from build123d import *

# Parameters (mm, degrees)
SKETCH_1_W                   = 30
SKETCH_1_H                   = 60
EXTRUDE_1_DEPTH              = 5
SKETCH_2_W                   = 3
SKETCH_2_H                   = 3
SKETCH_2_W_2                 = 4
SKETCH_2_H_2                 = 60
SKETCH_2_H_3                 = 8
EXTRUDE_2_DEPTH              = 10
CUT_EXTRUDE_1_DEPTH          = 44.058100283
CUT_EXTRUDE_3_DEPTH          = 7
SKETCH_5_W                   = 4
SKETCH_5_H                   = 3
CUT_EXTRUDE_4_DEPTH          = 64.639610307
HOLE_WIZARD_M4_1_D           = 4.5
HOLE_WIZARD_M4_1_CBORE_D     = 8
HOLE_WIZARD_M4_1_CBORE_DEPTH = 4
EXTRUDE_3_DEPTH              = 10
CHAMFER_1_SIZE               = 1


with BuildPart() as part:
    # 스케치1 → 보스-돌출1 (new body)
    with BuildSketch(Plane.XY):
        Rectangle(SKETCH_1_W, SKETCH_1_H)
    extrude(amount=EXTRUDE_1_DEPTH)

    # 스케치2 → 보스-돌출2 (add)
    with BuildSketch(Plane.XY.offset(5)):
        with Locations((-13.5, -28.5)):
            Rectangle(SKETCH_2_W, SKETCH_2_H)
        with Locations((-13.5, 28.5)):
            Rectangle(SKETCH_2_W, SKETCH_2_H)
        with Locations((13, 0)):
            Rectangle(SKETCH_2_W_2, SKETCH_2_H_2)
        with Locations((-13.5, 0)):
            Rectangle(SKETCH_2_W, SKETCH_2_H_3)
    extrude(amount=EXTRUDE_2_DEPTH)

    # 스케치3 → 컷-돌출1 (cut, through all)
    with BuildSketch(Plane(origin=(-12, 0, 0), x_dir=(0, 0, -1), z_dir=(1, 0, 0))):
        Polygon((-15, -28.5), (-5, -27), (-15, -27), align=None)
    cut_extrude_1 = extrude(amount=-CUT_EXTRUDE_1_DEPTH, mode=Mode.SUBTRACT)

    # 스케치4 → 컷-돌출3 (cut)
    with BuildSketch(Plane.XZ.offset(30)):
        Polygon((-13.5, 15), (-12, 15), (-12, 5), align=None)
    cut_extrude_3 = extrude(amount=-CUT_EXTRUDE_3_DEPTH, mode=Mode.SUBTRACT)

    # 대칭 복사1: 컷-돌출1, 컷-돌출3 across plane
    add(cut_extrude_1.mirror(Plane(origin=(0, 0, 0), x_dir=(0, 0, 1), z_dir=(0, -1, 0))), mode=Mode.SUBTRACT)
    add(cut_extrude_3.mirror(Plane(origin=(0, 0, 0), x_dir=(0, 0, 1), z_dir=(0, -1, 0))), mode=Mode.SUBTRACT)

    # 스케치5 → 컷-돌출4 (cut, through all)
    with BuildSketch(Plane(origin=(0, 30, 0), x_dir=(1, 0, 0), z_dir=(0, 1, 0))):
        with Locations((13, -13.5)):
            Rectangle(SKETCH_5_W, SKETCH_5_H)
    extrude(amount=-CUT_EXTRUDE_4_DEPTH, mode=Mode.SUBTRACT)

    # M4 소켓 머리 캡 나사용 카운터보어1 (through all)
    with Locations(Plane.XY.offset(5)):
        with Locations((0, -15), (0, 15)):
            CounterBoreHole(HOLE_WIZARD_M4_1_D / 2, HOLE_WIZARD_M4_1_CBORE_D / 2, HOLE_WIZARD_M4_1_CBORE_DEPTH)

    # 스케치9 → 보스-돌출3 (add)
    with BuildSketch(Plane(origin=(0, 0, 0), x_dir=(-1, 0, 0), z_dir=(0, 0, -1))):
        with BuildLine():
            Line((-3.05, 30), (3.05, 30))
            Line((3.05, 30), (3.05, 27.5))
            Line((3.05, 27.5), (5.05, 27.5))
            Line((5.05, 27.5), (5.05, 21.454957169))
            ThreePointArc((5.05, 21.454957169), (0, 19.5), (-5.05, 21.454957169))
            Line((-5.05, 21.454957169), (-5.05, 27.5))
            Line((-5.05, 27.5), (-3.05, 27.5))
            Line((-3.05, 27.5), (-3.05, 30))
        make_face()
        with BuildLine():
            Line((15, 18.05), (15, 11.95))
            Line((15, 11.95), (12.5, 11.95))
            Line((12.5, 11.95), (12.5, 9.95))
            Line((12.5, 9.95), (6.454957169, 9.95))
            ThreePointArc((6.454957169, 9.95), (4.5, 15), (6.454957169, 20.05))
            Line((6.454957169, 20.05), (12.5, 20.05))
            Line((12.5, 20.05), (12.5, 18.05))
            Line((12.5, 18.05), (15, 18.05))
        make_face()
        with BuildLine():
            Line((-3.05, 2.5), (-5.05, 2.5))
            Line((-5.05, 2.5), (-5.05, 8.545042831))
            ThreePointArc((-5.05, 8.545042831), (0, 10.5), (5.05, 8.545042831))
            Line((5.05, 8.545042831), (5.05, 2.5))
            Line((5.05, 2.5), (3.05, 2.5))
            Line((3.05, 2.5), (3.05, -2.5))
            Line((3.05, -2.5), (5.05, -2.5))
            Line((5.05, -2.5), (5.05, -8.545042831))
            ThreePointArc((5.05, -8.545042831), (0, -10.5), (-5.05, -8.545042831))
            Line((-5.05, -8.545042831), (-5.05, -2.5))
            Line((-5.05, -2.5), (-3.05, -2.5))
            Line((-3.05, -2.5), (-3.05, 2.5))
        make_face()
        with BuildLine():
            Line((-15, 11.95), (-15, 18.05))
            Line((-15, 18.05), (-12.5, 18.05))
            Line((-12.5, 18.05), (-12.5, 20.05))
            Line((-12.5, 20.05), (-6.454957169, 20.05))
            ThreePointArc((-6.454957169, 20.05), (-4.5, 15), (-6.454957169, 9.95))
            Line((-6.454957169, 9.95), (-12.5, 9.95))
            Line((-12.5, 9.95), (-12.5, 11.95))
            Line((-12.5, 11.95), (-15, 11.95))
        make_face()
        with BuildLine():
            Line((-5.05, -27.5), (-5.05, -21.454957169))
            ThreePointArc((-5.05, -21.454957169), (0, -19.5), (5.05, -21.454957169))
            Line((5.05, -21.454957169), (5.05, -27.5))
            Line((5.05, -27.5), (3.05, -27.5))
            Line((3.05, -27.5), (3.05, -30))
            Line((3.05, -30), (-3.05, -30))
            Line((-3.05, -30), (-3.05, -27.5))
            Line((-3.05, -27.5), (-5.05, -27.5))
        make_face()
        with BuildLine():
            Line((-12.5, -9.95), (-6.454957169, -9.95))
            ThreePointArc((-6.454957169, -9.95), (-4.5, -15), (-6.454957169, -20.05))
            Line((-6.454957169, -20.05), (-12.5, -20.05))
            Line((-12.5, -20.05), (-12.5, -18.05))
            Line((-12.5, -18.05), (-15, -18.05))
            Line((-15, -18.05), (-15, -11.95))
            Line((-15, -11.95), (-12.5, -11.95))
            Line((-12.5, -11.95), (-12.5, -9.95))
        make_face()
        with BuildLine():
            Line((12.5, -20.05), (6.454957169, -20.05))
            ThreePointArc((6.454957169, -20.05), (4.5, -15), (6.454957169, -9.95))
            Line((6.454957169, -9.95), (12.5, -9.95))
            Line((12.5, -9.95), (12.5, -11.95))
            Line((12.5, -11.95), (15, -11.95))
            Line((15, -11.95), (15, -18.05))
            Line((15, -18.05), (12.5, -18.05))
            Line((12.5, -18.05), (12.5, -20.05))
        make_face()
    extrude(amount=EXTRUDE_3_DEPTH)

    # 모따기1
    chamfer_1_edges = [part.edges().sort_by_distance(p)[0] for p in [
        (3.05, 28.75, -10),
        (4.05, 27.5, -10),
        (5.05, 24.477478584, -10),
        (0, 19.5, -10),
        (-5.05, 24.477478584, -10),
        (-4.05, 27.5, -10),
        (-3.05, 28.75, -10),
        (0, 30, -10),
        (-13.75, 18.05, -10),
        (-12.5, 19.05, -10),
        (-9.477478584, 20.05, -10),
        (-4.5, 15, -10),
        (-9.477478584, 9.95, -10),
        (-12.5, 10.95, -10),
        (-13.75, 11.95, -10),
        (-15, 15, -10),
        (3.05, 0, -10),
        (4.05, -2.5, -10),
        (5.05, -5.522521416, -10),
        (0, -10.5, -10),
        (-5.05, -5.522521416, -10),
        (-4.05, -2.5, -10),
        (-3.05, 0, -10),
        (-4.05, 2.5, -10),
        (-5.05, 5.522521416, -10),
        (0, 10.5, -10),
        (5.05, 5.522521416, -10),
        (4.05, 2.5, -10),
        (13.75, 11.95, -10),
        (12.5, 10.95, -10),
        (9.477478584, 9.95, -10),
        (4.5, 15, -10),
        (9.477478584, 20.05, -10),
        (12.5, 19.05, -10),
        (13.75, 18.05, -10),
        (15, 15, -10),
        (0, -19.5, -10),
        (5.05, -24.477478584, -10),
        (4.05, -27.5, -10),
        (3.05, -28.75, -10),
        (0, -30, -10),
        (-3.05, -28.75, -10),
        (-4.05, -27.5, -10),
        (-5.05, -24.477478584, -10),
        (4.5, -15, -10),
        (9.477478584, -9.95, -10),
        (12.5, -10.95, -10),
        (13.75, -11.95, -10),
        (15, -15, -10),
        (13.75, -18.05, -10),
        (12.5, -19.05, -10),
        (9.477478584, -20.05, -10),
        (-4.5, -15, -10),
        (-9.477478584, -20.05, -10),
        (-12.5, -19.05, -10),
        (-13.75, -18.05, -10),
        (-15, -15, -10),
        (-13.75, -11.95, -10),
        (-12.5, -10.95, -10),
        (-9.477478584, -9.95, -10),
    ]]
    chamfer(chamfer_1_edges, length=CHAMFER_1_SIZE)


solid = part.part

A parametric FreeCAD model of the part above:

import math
import FreeCAD as App
import Part
import Sketcher


def edges_at(feature, points):
    """Names of the edges that pass closest to the given points."""
    edges = feature.Shape.Edges
    near = lambda p: min(range(len(edges)), key=lambda i: edges[i].distToShape(Part.Vertex(*p))[0])
    return sorted({f"Edge{near(p) + 1}" for p in points})

doc = App.newDocument("Part")
body = doc.addObject("PartDesign::Body", "Body")

# Sketch on XY plane
sketch1 = doc.addObject("Sketcher::SketchObject", "Sketch")
body.addObject(sketch1)
sketch1.AttachmentSupport = (doc.XY_Plane, [""])
sketch1.MapMode = "FlatFace"
sketch1.addGeometry([
    Part.LineSegment(App.Vector(-15, 30, 0), App.Vector(-15, -30, 0)),
    Part.LineSegment(App.Vector(-15, -30, 0), App.Vector(15, -30, 0)),
    Part.LineSegment(App.Vector(15, -30, 0), App.Vector(15, 30, 0)),
    Part.LineSegment(App.Vector(15, 30, 0), App.Vector(-15, 30, 0)),
], False)
sketch1.addConstraint([
    Sketcher.Constraint("Coincident", 0, 2, 1, 1),
    Sketcher.Constraint("Coincident", 1, 2, 2, 1),
    Sketcher.Constraint("Coincident", 2, 2, 3, 1),
    Sketcher.Constraint("Coincident", 3, 2, 0, 1),
    Sketcher.Constraint("Vertical", 0),
    Sketcher.Constraint("Horizontal", 1),
    Sketcher.Constraint("Vertical", 2),
    Sketcher.Constraint("Horizontal", 3),
    Sketcher.Constraint("Symmetric", 0, 2, 2, 2, -1, 1),
    Sketcher.Constraint("DistanceX", 1, 1, 1, 2, 30.0),
    Sketcher.Constraint("DistanceY", 0, 2, 0, 1, 60.0),
])
pad1 = doc.addObject("PartDesign::Pad", "Pad")
body.addObject(pad1)
pad1.Profile = sketch1
pad1.Length = 5

# Sketch on XY plane
sketch2 = doc.addObject("Sketcher::SketchObject", "Sketch001")
body.addObject(sketch2)
sketch2.AttachmentSupport = (doc.XY_Plane, [""])
sketch2.MapMode = "FlatFace"
sketch2.AttachmentOffset = App.Placement(App.Vector(0, 0, 5), App.Rotation())
sketch2.addGeometry([
    Part.LineSegment(App.Vector(-15, -27, 0), App.Vector(-15, -30, 0)),  # 0
    Part.LineSegment(App.Vector(-15, -30, 0), App.Vector(-12, -30, 0)),  # 1
    Part.LineSegment(App.Vector(-12, -30, 0), App.Vector(-12, -27, 0)),  # 2
    Part.LineSegment(App.Vector(-12, -27, 0), App.Vector(-15, -27, 0)),  # 3
    Part.LineSegment(App.Vector(-15, 30, 0), App.Vector(-15, 27, 0)),  # 4
    Part.LineSegment(App.Vector(-15, 27, 0), App.Vector(-12, 27, 0)),  # 5
    Part.LineSegment(App.Vector(-12, 27, 0), App.Vector(-12, 30, 0)),  # 6
    Part.LineSegment(App.Vector(-12, 30, 0), App.Vector(-15, 30, 0)),  # 7
    Part.LineSegment(App.Vector(11, 30, 0), App.Vector(11, -30, 0)),  # 8
    Part.LineSegment(App.Vector(11, -30, 0), App.Vector(15, -30, 0)),  # 9
    Part.LineSegment(App.Vector(15, -30, 0), App.Vector(15, 30, 0)),  # 10
    Part.LineSegment(App.Vector(15, 30, 0), App.Vector(11, 30, 0)),  # 11
    Part.LineSegment(App.Vector(-15, 4, 0), App.Vector(-15, -4, 0)),  # 12
    Part.LineSegment(App.Vector(-15, -4, 0), App.Vector(-12, -4, 0)),  # 13
    Part.LineSegment(App.Vector(-12, -4, 0), App.Vector(-12, 4, 0)),  # 14
    Part.LineSegment(App.Vector(-12, 4, 0), App.Vector(-15, 4, 0)),  # 15
], False)
sketch2.addConstraint([
    Sketcher.Constraint("Coincident", 0, 2, 1, 1),
    Sketcher.Constraint("Coincident", 1, 2, 2, 1),
    Sketcher.Constraint("Coincident", 2, 2, 3, 1),
    Sketcher.Constraint("Coincident", 3, 2, 0, 1),
    Sketcher.Constraint("Coincident", 4, 2, 5, 1),
    Sketcher.Constraint("Coincident", 5, 2, 6, 1),
    Sketcher.Constraint("Coincident", 6, 2, 7, 1),
    Sketcher.Constraint("Coincident", 7, 2, 4, 1),
    Sketcher.Constraint("Coincident", 8, 2, 9, 1),
    Sketcher.Constraint("Coincident", 9, 2, 10, 1),
    Sketcher.Constraint("Coincident", 10, 2, 11, 1),
    Sketcher.Constraint("Coincident", 11, 2, 8, 1),
    Sketcher.Constraint("Coincident", 12, 2, 13, 1),
    Sketcher.Constraint("Coincident", 13, 2, 14, 1),
    Sketcher.Constraint("Coincident", 14, 2, 15, 1),
    Sketcher.Constraint("Coincident", 15, 2, 12, 1),
    Sketcher.Constraint("Vertical", 0),
    Sketcher.Constraint("Horizontal", 1),
    Sketcher.Constraint("Vertical", 2),
    Sketcher.Constraint("Horizontal", 3),
    Sketcher.Constraint("Vertical", 4),
    Sketcher.Constraint("Horizontal", 5),
    Sketcher.Constraint("Vertical", 6),
    Sketcher.Constraint("Horizontal", 7),
    Sketcher.Constraint("Vertical", 8),
    Sketcher.Constraint("Horizontal", 9),
    Sketcher.Constraint("Vertical", 10),
    Sketcher.Constraint("Horizontal", 11),
    Sketcher.Constraint("Vertical", 12),
    Sketcher.Constraint("Horizontal", 13),
    Sketcher.Constraint("Vertical", 14),
    Sketcher.Constraint("Horizontal", 15),
    Sketcher.Constraint("Symmetric", 7, 2, 9, 2, -1, 1),
    Sketcher.Constraint("Symmetric", 0, 2, 10, 2, -1, 1),
    Sketcher.Constraint("Symmetric", 2, 2, 5, 2, -1),
    Sketcher.Constraint("Horizontal", 1, 2, 8, 2),
    Sketcher.Constraint("Vertical", 7, 2, 12, 2),
    Sketcher.Constraint("Vertical", 6, 2, 13, 2),
    Sketcher.Constraint("Equal", 15, 0),
    Sketcher.Constraint("DistanceX", 1, 1, 1, 2, 3.0),
    Sketcher.Constraint("DistanceX", 9, 1, 9, 2, 4.0),
    Sketcher.Constraint("DistanceY", 8, 2, 8, 1, 60.0),
    Sketcher.Constraint("DistanceY", 12, 2, 12, 1, 8.0),
    Sketcher.Constraint("DistanceX", 0, 2, -1, 1, 15.0),
    Sketcher.Constraint("DistanceY", 12, 2, -1, 1, 4.0),
])
pad2 = doc.addObject("PartDesign::Pad", "Pad001")
body.addObject(pad2)
pad2.Profile = sketch2
pad2.Length = 10

# Sketch on YZ plane
sketch3 = doc.addObject("Sketcher::SketchObject", "Sketch002")
body.addObject(sketch3)
sketch3.AttachmentSupport = (doc.YZ_Plane, [""])
sketch3.MapMode = "FlatFace"
sketch3.AttachmentOffset = App.Placement(App.Vector(0, 0, -12), App.Rotation())
sketch3.addGeometry([
    Part.LineSegment(App.Vector(-28.5, 15, 0), App.Vector(-27, 5, 0)),
    Part.LineSegment(App.Vector(-27, 5, 0), App.Vector(-27, 15, 0)),
    Part.LineSegment(App.Vector(-27, 15, 0), App.Vector(-28.5, 15, 0)),
], False)
sketch3.addConstraint([
    Sketcher.Constraint("Coincident", 0, 2, 1, 1),
    Sketcher.Constraint("Coincident", 1, 2, 2, 1),
    Sketcher.Constraint("Coincident", 2, 2, 0, 1),
    Sketcher.Constraint("Vertical", 1),
    Sketcher.Constraint("Horizontal", 2),
    Sketcher.Constraint("DistanceY", 1, 1, 1, 2, 10.0),
    Sketcher.Constraint("DistanceX", 2, 2, 2, 1, 1.5),
    Sketcher.Constraint("DistanceX", 0, 2, -1, 1, 27.0),
    Sketcher.Constraint("DistanceY", -1, 1, 0, 2, 5.0),
])
pocket1 = doc.addObject("PartDesign::Pocket", "Pocket")
body.addObject(pocket1)
pocket1.Profile = sketch3
pocket1.Type = "ThroughAll"

# Sketch on XZ plane
sketch4 = doc.addObject("Sketcher::SketchObject", "Sketch003")
body.addObject(sketch4)
sketch4.AttachmentSupport = (doc.XZ_Plane, [""])
sketch4.MapMode = "FlatFace"
sketch4.AttachmentOffset = App.Placement(App.Vector(0, 0, 30), App.Rotation())
sketch4.addGeometry([
    Part.LineSegment(App.Vector(-12, 15, 0), App.Vector(-13.5, 15, 0)),
    Part.LineSegment(App.Vector(-13.5, 15, 0), App.Vector(-12, 5, 0)),
    Part.LineSegment(App.Vector(-12, 5, 0), App.Vector(-12, 15, 0)),
], False)
sketch4.addConstraint([
    Sketcher.Constraint("Coincident", 0, 2, 1, 1),
    Sketcher.Constraint("Coincident", 1, 2, 2, 1),
    Sketcher.Constraint("Coincident", 2, 2, 0, 1),
    Sketcher.Constraint("Horizontal", 0),
    Sketcher.Constraint("Vertical", 2),
    Sketcher.Constraint("DistanceY", 2, 1, 2, 2, 10.0),
    Sketcher.Constraint("DistanceX", 0, 2, 0, 1, 1.5),
    Sketcher.Constraint("DistanceY", -1, 1, 0, 2, 15.0),
    Sketcher.Constraint("DistanceX", 1, 2, -1, 1, 12.0),
])
pocket2 = doc.addObject("PartDesign::Pocket", "Pocket001")
body.addObject(pocket2)
pocket2.Profile = sketch4
pocket2.Length = 7
doc.recompute()

mirrored = doc.addObject("PartDesign::Mirrored", "Mirrored")
body.addObject(mirrored)
mirrored.Originals = [pocket1, pocket2]
mirrored.MirrorPlane = (doc.XZ_Plane, [""])
body.Tip = mirrored

# Sketch on XZ plane
sketch5 = doc.addObject("Sketcher::SketchObject", "Sketch004")
body.addObject(sketch5)
sketch5.AttachmentSupport = (doc.XZ_Plane, [""])
sketch5.MapMode = "FlatFace"
sketch5.AttachmentOffset = App.Placement(App.Vector(0, 0, -30), App.Rotation())
sketch5.addGeometry([
    Part.LineSegment(App.Vector(11, 12, 0), App.Vector(11, 15, 0)),
    Part.LineSegment(App.Vector(11, 15, 0), App.Vector(15, 15, 0)),
    Part.LineSegment(App.Vector(15, 15, 0), App.Vector(15, 12, 0)),
    Part.LineSegment(App.Vector(15, 12, 0), App.Vector(11, 12, 0)),
], False)
sketch5.addConstraint([
    Sketcher.Constraint("Coincident", 0, 2, 1, 1),
    Sketcher.Constraint("Coincident", 1, 2, 2, 1),
    Sketcher.Constraint("Coincident", 2, 2, 3, 1),
    Sketcher.Constraint("Coincident", 3, 2, 0, 1),
    Sketcher.Constraint("Vertical", 0),
    Sketcher.Constraint("Horizontal", 1),
    Sketcher.Constraint("Vertical", 2),
    Sketcher.Constraint("Horizontal", 3),
    Sketcher.Constraint("DistanceX", 1, 1, 1, 2, 4.0),
    Sketcher.Constraint("DistanceY", 0, 1, 0, 2, 3.0),
    Sketcher.Constraint("DistanceX", -1, 1, 0, 2, 11.0),
    Sketcher.Constraint("DistanceY", -1, 1, 0, 2, 15.0),
])
pocket3 = doc.addObject("PartDesign::Pocket", "Pocket002")
body.addObject(pocket3)
pocket3.Profile = sketch5
pocket3.Type = "ThroughAll"
pocket3.Reversed = True

# Sketch on XY plane
sketch6 = doc.addObject("Sketcher::SketchObject", "Sketch005")
body.addObject(sketch6)
sketch6.AttachmentSupport = (doc.XY_Plane, [""])
sketch6.MapMode = "FlatFace"
sketch6.AttachmentOffset = App.Placement(App.Vector(0, 0, 5), App.Rotation())
sketch6.addGeometry([
    Part.Circle(App.Vector(0, -15, 0), App.Vector(0, 0, 1), 2.25),
    Part.Circle(App.Vector(0, 15, 0), App.Vector(0, 0, 1), 2.25),
], False)
sketch6.addConstraint([
    Sketcher.Constraint("Equal", 0, 1),
    Sketcher.Constraint("Symmetric", 0, 3, 1, 3, -1, 1),
    Sketcher.Constraint("PointOnObject", 0, 3, -2),
    Sketcher.Constraint("Diameter", 0, 4.5),
    Sketcher.Constraint("DistanceY", 0, 3, -1, 1, 15.0),
])
doc.recompute()
hole = doc.addObject("PartDesign::Hole", "Hole")
body.addObject(hole)
hole.Profile = sketch6
hole.ThreadType = "None"
hole.Diameter = 4.5
hole.DepthType = "ThroughAll"
hole.HoleCutType = "Counterbore"
hole.HoleCutDiameter = 8
hole.HoleCutDepth = 4

# Sketch on XY plane
sketch7 = doc.addObject("Sketcher::SketchObject", "Sketch006")
body.addObject(sketch7)
sketch7.AttachmentSupport = (doc.XY_Plane, [""])
sketch7.MapMode = "FlatFace"
sketch7.addGeometry([
    Part.LineSegment(App.Vector(-3.05, 30, 0), App.Vector(3.05, 30, 0)),  # 0
    Part.LineSegment(App.Vector(3.05, 30, 0), App.Vector(3.05, 27.5, 0)),  # 1
    Part.LineSegment(App.Vector(3.05, 27.5, 0), App.Vector(5.05, 27.5, 0)),  # 2
    Part.LineSegment(App.Vector(5.05, 27.5, 0), App.Vector(5.05, 21.454957, 0)),  # 3
    Part.ArcOfCircle(Part.Circle(App.Vector(0, 27, 0), App.Vector(0, 0, 1), 7.5), math.radians(-132.324857), math.radians(-47.675143)),  # 4
    Part.LineSegment(App.Vector(-5.05, 21.454957, 0), App.Vector(-5.05, 27.5, 0)),  # 5
    Part.LineSegment(App.Vector(-5.05, 27.5, 0), App.Vector(-3.05, 27.5, 0)),  # 6
    Part.LineSegment(App.Vector(-3.05, 27.5, 0), App.Vector(-3.05, 30, 0)),  # 7
    Part.LineSegment(App.Vector(-15, 11.95, 0), App.Vector(-15, 18.05, 0)),  # 8
    Part.LineSegment(App.Vector(-15, 18.05, 0), App.Vector(-12.5, 18.05, 0)),  # 9
    Part.LineSegment(App.Vector(-12.5, 18.05, 0), App.Vector(-12.5, 20.05, 0)),  # 10
    Part.LineSegment(App.Vector(-12.5, 20.05, 0), App.Vector(-6.454957, 20.05, 0)),  # 11
    Part.ArcOfCircle(Part.Circle(App.Vector(-12, 15, 0), App.Vector(0, 0, 1), 7.5), math.radians(-42.324857), math.radians(42.324857)),  # 12
    Part.LineSegment(App.Vector(-6.454957, 9.95, 0), App.Vector(-12.5, 9.95, 0)),  # 13
    Part.LineSegment(App.Vector(-12.5, 9.95, 0), App.Vector(-12.5, 11.95, 0)),  # 14
    Part.LineSegment(App.Vector(-12.5, 11.95, 0), App.Vector(-15, 11.95, 0)),  # 15
    Part.LineSegment(App.Vector(5.05, 2.5, 0), App.Vector(3.05, 2.5, 0)),  # 16
    Part.LineSegment(App.Vector(3.05, 2.5, 0), App.Vector(3.05, -2.5, 0)),  # 17
    Part.LineSegment(App.Vector(3.05, -2.5, 0), App.Vector(5.05, -2.5, 0)),  # 18
    Part.LineSegment(App.Vector(5.05, -2.5, 0), App.Vector(5.05, -8.545043, 0)),  # 19
    Part.ArcOfCircle(Part.Circle(App.Vector(0, -3, 0), App.Vector(0, 0, 1), 7.5), math.radians(-132.324857), math.radians(-47.675143)),  # 20
    Part.LineSegment(App.Vector(-5.05, -8.545043, 0), App.Vector(-5.05, -2.5, 0)),  # 21
    Part.LineSegment(App.Vector(-5.05, -2.5, 0), App.Vector(-3.05, -2.5, 0)),  # 22
    Part.LineSegment(App.Vector(-3.05, -2.5, 0), App.Vector(-3.05, 2.5, 0)),  # 23
    Part.LineSegment(App.Vector(-3.05, 2.5, 0), App.Vector(-5.05, 2.5, 0)),  # 24
    Part.LineSegment(App.Vector(-5.05, 2.5, 0), App.Vector(-5.05, 8.545043, 0)),  # 25
    Part.ArcOfCircle(Part.Circle(App.Vector(0, 3, 0), App.Vector(0, 0, 1), 7.5), math.radians(47.675143), math.radians(132.324857)),  # 26
    Part.LineSegment(App.Vector(5.05, 8.545043, 0), App.Vector(5.05, 2.5, 0)),  # 27
    Part.LineSegment(App.Vector(15, 18.05, 0), App.Vector(15, 11.95, 0)),  # 28
    Part.LineSegment(App.Vector(15, 11.95, 0), App.Vector(12.5, 11.95, 0)),  # 29
    Part.LineSegment(App.Vector(12.5, 11.95, 0), App.Vector(12.5, 9.95, 0)),  # 30
    Part.LineSegment(App.Vector(12.5, 9.95, 0), App.Vector(6.454957, 9.95, 0)),  # 31
    Part.ArcOfCircle(Part.Circle(App.Vector(12, 15, 0), App.Vector(0, 0, 1), 7.5), math.radians(137.675143), math.radians(222.324857)),  # 32
    Part.LineSegment(App.Vector(6.454957, 20.05, 0), App.Vector(12.5, 20.05, 0)),  # 33
    Part.LineSegment(App.Vector(12.5, 20.05, 0), App.Vector(12.5, 18.05, 0)),  # 34
    Part.LineSegment(App.Vector(12.5, 18.05, 0), App.Vector(15, 18.05, 0)),  # 35
    Part.LineSegment(App.Vector(5.05, -21.454957, 0), App.Vector(5.05, -27.5, 0)),  # 36
    Part.LineSegment(App.Vector(5.05, -27.5, 0), App.Vector(3.05, -27.5, 0)),  # 37
    Part.LineSegment(App.Vector(3.05, -27.5, 0), App.Vector(3.05, -30, 0)),  # 38
    Part.LineSegment(App.Vector(3.05, -30, 0), App.Vector(-3.05, -30, 0)),  # 39
    Part.LineSegment(App.Vector(-3.05, -30, 0), App.Vector(-3.05, -27.5, 0)),  # 40
    Part.LineSegment(App.Vector(-3.05, -27.5, 0), App.Vector(-5.05, -27.5, 0)),  # 41
    Part.LineSegment(App.Vector(-5.05, -27.5, 0), App.Vector(-5.05, -21.454957, 0)),  # 42
    Part.ArcOfCircle(Part.Circle(App.Vector(0, -27, 0), App.Vector(0, 0, 1), 7.5), math.radians(47.675143), math.radians(132.324857)),  # 43
    Part.LineSegment(App.Vector(6.454957, -9.95, 0), App.Vector(12.5, -9.95, 0)),  # 44
    Part.LineSegment(App.Vector(12.5, -9.95, 0), App.Vector(12.5, -11.95, 0)),  # 45
    Part.LineSegment(App.Vector(12.5, -11.95, 0), App.Vector(15, -11.95, 0)),  # 46
    Part.LineSegment(App.Vector(15, -11.95, 0), App.Vector(15, -18.05, 0)),  # 47
    Part.LineSegment(App.Vector(15, -18.05, 0), App.Vector(12.5, -18.05, 0)),  # 48
    Part.LineSegment(App.Vector(12.5, -18.05, 0), App.Vector(12.5, -20.05, 0)),  # 49
    Part.LineSegment(App.Vector(12.5, -20.05, 0), App.Vector(6.454957, -20.05, 0)),  # 50
    Part.ArcOfCircle(Part.Circle(App.Vector(12, -15, 0), App.Vector(0, 0, 1), 7.5), math.radians(137.675143), math.radians(222.324857)),  # 51
    Part.LineSegment(App.Vector(-6.454957, -20.05, 0), App.Vector(-12.5, -20.05, 0)),  # 52
    Part.LineSegment(App.Vector(-12.5, -20.05, 0), App.Vector(-12.5, -18.05, 0)),  # 53
    Part.LineSegment(App.Vector(-12.5, -18.05, 0), App.Vector(-15, -18.05, 0)),  # 54
    Part.LineSegment(App.Vector(-15, -18.05, 0), App.Vector(-15, -11.95, 0)),  # 55
    Part.LineSegment(App.Vector(-15, -11.95, 0), App.Vector(-12.5, -11.95, 0)),  # 56
    Part.LineSegment(App.Vector(-12.5, -11.95, 0), App.Vector(-12.5, -9.95, 0)),  # 57
    Part.LineSegment(App.Vector(-12.5, -9.95, 0), App.Vector(-6.454957, -9.95, 0)),  # 58
    Part.ArcOfCircle(Part.Circle(App.Vector(-12, -15, 0), App.Vector(0, 0, 1), 7.5), math.radians(-42.324857), math.radians(42.324857)),  # 59
], False)
sketch7.addConstraint([
    Sketcher.Constraint("Coincident", 0, 2, 1, 1),
    Sketcher.Constraint("Coincident", 1, 2, 2, 1),
    Sketcher.Constraint("Coincident", 2, 2, 3, 1),
    Sketcher.Constraint("Coincident", 3, 2, 4, 2),
    Sketcher.Constraint("Coincident", 4, 1, 5, 1),
    Sketcher.Constraint("Coincident", 5, 2, 6, 1),
    Sketcher.Constraint("Coincident", 6, 2, 7, 1),
    Sketcher.Constraint("Coincident", 7, 2, 0, 1),
    Sketcher.Constraint("Coincident", 8, 2, 9, 1),
    Sketcher.Constraint("Coincident", 9, 2, 10, 1),
    Sketcher.Constraint("Coincident", 10, 2, 11, 1),
    Sketcher.Constraint("Coincident", 11, 2, 12, 2),
    Sketcher.Constraint("Coincident", 12, 1, 13, 1),
    Sketcher.Constraint("Coincident", 13, 2, 14, 1),
    Sketcher.Constraint("Coincident", 14, 2, 15, 1),
    Sketcher.Constraint("Coincident", 15, 2, 8, 1),
    Sketcher.Constraint("Coincident", 16, 2, 17, 1),
    Sketcher.Constraint("Coincident", 17, 2, 18, 1),
    Sketcher.Constraint("Coincident", 18, 2, 19, 1),
    Sketcher.Constraint("Coincident", 19, 2, 20, 2),
    Sketcher.Constraint("Coincident", 20, 1, 21, 1),
    Sketcher.Constraint("Coincident", 21, 2, 22, 1),
    Sketcher.Constraint("Coincident", 22, 2, 23, 1),
    Sketcher.Constraint("Coincident", 23, 2, 24, 1),
    Sketcher.Constraint("Coincident", 24, 2, 25, 1),
    Sketcher.Constraint("Coincident", 25, 2, 26, 2),
    Sketcher.Constraint("Coincident", 26, 1, 27, 1),
    Sketcher.Constraint("Coincident", 27, 2, 16, 1),
    Sketcher.Constraint("Coincident", 28, 2, 29, 1),
    Sketcher.Constraint("Coincident", 29, 2, 30, 1),
    Sketcher.Constraint("Coincident", 30, 2, 31, 1),
    Sketcher.Constraint("Coincident", 31, 2, 32, 2),
    Sketcher.Constraint("Coincident", 32, 1, 33, 1),
    Sketcher.Constraint("Coincident", 33, 2, 34, 1),
    Sketcher.Constraint("Coincident", 34, 2, 35, 1),
    Sketcher.Constraint("Coincident", 35, 2, 28, 1),
    Sketcher.Constraint("Coincident", 36, 2, 37, 1),
    Sketcher.Constraint("Coincident", 37, 2, 38, 1),
    Sketcher.Constraint("Coincident", 38, 2, 39, 1),
    Sketcher.Constraint("Coincident", 39, 2, 40, 1),
    Sketcher.Constraint("Coincident", 40, 2, 41, 1),
    Sketcher.Constraint("Coincident", 41, 2, 42, 1),
    Sketcher.Constraint("Coincident", 42, 2, 43, 2),
    Sketcher.Constraint("Coincident", 43, 1, 36, 1),
    Sketcher.Constraint("Coincident", 44, 2, 45, 1),
    Sketcher.Constraint("Coincident", 45, 2, 46, 1),
    Sketcher.Constraint("Coincident", 46, 2, 47, 1),
    Sketcher.Constraint("Coincident", 47, 2, 48, 1),
    Sketcher.Constraint("Coincident", 48, 2, 49, 1),
    Sketcher.Constraint("Coincident", 49, 2, 50, 1),
    Sketcher.Constraint("Coincident", 50, 2, 51, 2),
    Sketcher.Constraint("Coincident", 51, 1, 44, 1),
    Sketcher.Constraint("Coincident", 52, 2, 53, 1),
    Sketcher.Constraint("Coincident", 53, 2, 54, 1),
    Sketcher.Constraint("Coincident", 54, 2, 55, 1),
    Sketcher.Constraint("Coincident", 55, 2, 56, 1),
    Sketcher.Constraint("Coincident", 56, 2, 57, 1),
    Sketcher.Constraint("Coincident", 57, 2, 58, 1),
    Sketcher.Constraint("Coincident", 58, 2, 59, 2),
    Sketcher.Constraint("Coincident", 59, 1, 52, 1),
    Sketcher.Constraint("Horizontal", 0),
    Sketcher.Constraint("Vertical", 1),
    Sketcher.Constraint("Horizontal", 2),
    Sketcher.Constraint("Vertical", 3),
    Sketcher.Constraint("Vertical", 5),
    Sketcher.Constraint("Horizontal", 6),
    Sketcher.Constraint("Vertical", 7),
    Sketcher.Constraint("Vertical", 8),
    Sketcher.Constraint("Horizontal", 9),
    Sketcher.Constraint("Vertical", 10),
    Sketcher.Constraint("Horizontal", 11),
    Sketcher.Constraint("Horizontal", 13),
    Sketcher.Constraint("Vertical", 14),
    Sketcher.Constraint("Horizontal", 15),
    Sketcher.Constraint("Horizontal", 16),
    Sketcher.Constraint("Vertical", 17),
    Sketcher.Constraint("Horizontal", 18),
    Sketcher.Constraint("Vertical", 19),
    Sketcher.Constraint("Vertical", 21),
    Sketcher.Constraint("Horizontal", 22),
    Sketcher.Constraint("Vertical", 23),
    Sketcher.Constraint("Horizontal", 24),
    Sketcher.Constraint("Vertical", 25),
    Sketcher.Constraint("Vertical", 27),
    Sketcher.Constraint("Vertical", 28),
    Sketcher.Constraint("Horizontal", 29),
    Sketcher.Constraint("Vertical", 30),
    Sketcher.Constraint("Horizontal", 31),
    Sketcher.Constraint("Horizontal", 33),
    Sketcher.Constraint("Vertical", 34),
    Sketcher.Constraint("Horizontal", 35),
    Sketcher.Constraint("Vertical", 36),
    Sketcher.Constraint("Horizontal", 37),
    Sketcher.Constraint("Vertical", 38),
    Sketcher.Constraint("Horizontal", 39),
    Sketcher.Constraint("Vertical", 40),
    Sketcher.Constraint("Horizontal", 41),
    Sketcher.Constraint("Vertical", 42),
    Sketcher.Constraint("Horizontal", 44),
    Sketcher.Constraint("Vertical", 45),
    Sketcher.Constraint("Horizontal", 46),
    Sketcher.Constraint("Vertical", 47),
    Sketcher.Constraint("Horizontal", 48),
    Sketcher.Constraint("Vertical", 49),
    Sketcher.Constraint("Horizontal", 50),
    Sketcher.Constraint("Horizontal", 52),
    Sketcher.Constraint("Vertical", 53),
    Sketcher.Constraint("Horizontal", 54),
    Sketcher.Constraint("Vertical", 55),
    Sketcher.Constraint("Horizontal", 56),
    Sketcher.Constraint("Vertical", 57),
    Sketcher.Constraint("Horizontal", 58),
    Sketcher.Constraint("Equal", 4, 12),
    Sketcher.Constraint("Equal", 12, 20),
    Sketcher.Constraint("Equal", 20, 26),
    Sketcher.Constraint("Equal", 26, 32),
    Sketcher.Constraint("Equal", 32, 43),
    Sketcher.Constraint("Equal", 43, 51),
    Sketcher.Constraint("Equal", 51, 59),
    Sketcher.Constraint("Symmetric", 20, 3, 26, 3, -1, 1),
    Sketcher.Constraint("Symmetric", 4, 3, 43, 3, -1, 1),
    Sketcher.Constraint("Symmetric", 12, 3, 51, 3, -1, 1),
    Sketcher.Constraint("Symmetric", 32, 3, 59, 3, -1, 1),
    Sketcher.Constraint("Symmetric", 16, 2, 22, 2, -1, 1),
    Sketcher.Constraint("Symmetric", 18, 2, 24, 2, -1, 1),
    Sketcher.Constraint("Symmetric", 5, 2, 36, 2, -1, 1),
    Sketcher.Constraint("Symmetric", 7, 2, 38, 2, -1, 1),
    Sketcher.Constraint("Symmetric", 1, 2, 40, 2, -1, 1),
    Sketcher.Constraint("Symmetric", 13, 2, 44, 2, -1, 1),
    Sketcher.Constraint("Symmetric", 15, 2, 46, 2, -1, 1),
    Sketcher.Constraint("Symmetric", 9, 2, 48, 2, -1, 1),
    Sketcher.Constraint("Symmetric", 33, 2, 52, 2, -1, 1),
    Sketcher.Constraint("Symmetric", 35, 2, 54, 2, -1, 1),
    Sketcher.Constraint("Symmetric", 29, 2, 56, 2, -1, 1),
    Sketcher.Constraint("Symmetric", 12, 3, 32, 3, -2),
    Sketcher.Constraint("Symmetric", 3, 2, 4, 1, -2),
    Sketcher.Constraint("Symmetric", 1, 2, 6, 2, -2),
    Sketcher.Constraint("Symmetric", 19, 2, 20, 1, -2),
    Sketcher.Constraint("Symmetric", 24, 2, 27, 2, -2),
    Sketcher.Constraint("Symmetric", 15, 2, 28, 2, -2),
    Sketcher.Constraint("Symmetric", 13, 2, 30, 2, -2),
    Sketcher.Constraint("Symmetric", 10, 2, 33, 2, -2),
    Sketcher.Constraint("Horizontal", 9, 2, 34, 2),
    Sketcher.Constraint("Horizontal", 42, 2, 43, 1),
    Sketcher.Constraint("Horizontal", 50, 2, 52, 2),
    Sketcher.Constraint("Horizontal", 51, 1, 57, 2),
    Sketcher.Constraint("Vertical", 11, 2, 12, 1),
    Sketcher.Constraint("Vertical", 10, 2, 13, 2),
    Sketcher.Constraint("Vertical", 1, 2, 16, 2),
    Sketcher.Constraint("Vertical", 3, 2, 18, 2),
    Sketcher.Constraint("Equal", 56, 1),
    Sketcher.Constraint("Equal", 58, 3),
    Sketcher.Constraint("Equal", 39, 8),
    Sketcher.Constraint("Equal", 41, 10),
    Sketcher.Constraint("Equal", 10, 14),
    Sketcher.Constraint("Equal", 5, 19),
    Sketcher.Constraint("Radius", 4, 7.5),
    Sketcher.Constraint("DistanceX", 2, 1, 2, 2, 2.0),
    Sketcher.Constraint("DistanceY", 17, 2, 17, 1, 5.0),
    Sketcher.Constraint("DistanceX", 0, 1, 0, 2, 6.1),
    Sketcher.Constraint("DistanceX", 9, 1, 9, 2, 2.5),
    Sketcher.Constraint("DistanceY", -1, 1, 4, 3, 27.0),
    Sketcher.Constraint("DistanceX", 12, 3, -1, 1, 12.0),
    Sketcher.Constraint("DistanceY", -1, 1, 12, 3, 15.0),
    Sketcher.Constraint("DistanceY", 20, 3, -1, 1, 3.0),
])
pad3 = doc.addObject("PartDesign::Pad", "Pad002")
body.addObject(pad3)
pad3.Profile = sketch7
pad3.Length = 10
pad3.Reversed = True
doc.recompute()

chamfer = doc.addObject("PartDesign::Chamfer", "Chamfer")
body.addObject(chamfer)
chamfer.Base = (pad3, edges_at(pad3, [
    (3.05, 28.75, -10),
    (4.05, 27.5, -10),
    (5.05, 24.477, -10),
    (0, 19.5, -10),
    (-5.05, 24.477, -10),
    (-4.05, 27.5, -10),
    (-3.05, 28.75, -10),
    (0, 30, -10),
    (-13.75, 18.05, -10),
    (-12.5, 19.05, -10),
    (-9.477, 20.05, -10),
    (-4.5, 15, -10),
    (-9.477, 9.95, -10),
    (-12.5, 10.95, -10),
    (-13.75, 11.95, -10),
    (-15, 15, -10),
    (3.05, 0, -10),
    (4.05, -2.5, -10),
    (5.05, -5.523, -10),
    (0, -10.5, -10),
    (-5.05, -5.523, -10),
    (-4.05, -2.5, -10),
    (-3.05, 0, -10),
    (-4.05, 2.5, -10),
    (-5.05, 5.523, -10),
    (0, 10.5, -10),
    (5.05, 5.523, -10),
    (4.05, 2.5, -10),
    (13.75, 11.95, -10),
    (12.5, 10.95, -10),
    (9.477, 9.95, -10),
    (4.5, 15, -10),
    (9.477, 20.05, -10),
    (12.5, 19.05, -10),
    (13.75, 18.05, -10),
    (15, 15, -10),
    (0, -19.5, -10),
    (5.05, -24.477, -10),
    (4.05, -27.5, -10),
    (3.05, -28.75, -10),
    (0, -30, -10),
    (-3.05, -28.75, -10),
    (-4.05, -27.5, -10),
    (-5.05, -24.477, -10),
    (4.5, -15, -10),
    (9.477, -9.95, -10),
    (12.5, -10.95, -10),
    (13.75, -11.95, -10),
    (15, -15, -10),
    (13.75, -18.05, -10),
    (12.5, -19.05, -10),
    (9.477, -20.05, -10),
    (-4.5, -15, -10),
    (-9.477, -20.05, -10),
    (-12.5, -19.05, -10),
    (-13.75, -18.05, -10),
    (-15, -15, -10),
    (-13.75, -11.95, -10),
    (-12.5, -10.95, -10),
    (-9.477, -9.95, -10),
]))
chamfer.Size = 1

doc.recompute()
